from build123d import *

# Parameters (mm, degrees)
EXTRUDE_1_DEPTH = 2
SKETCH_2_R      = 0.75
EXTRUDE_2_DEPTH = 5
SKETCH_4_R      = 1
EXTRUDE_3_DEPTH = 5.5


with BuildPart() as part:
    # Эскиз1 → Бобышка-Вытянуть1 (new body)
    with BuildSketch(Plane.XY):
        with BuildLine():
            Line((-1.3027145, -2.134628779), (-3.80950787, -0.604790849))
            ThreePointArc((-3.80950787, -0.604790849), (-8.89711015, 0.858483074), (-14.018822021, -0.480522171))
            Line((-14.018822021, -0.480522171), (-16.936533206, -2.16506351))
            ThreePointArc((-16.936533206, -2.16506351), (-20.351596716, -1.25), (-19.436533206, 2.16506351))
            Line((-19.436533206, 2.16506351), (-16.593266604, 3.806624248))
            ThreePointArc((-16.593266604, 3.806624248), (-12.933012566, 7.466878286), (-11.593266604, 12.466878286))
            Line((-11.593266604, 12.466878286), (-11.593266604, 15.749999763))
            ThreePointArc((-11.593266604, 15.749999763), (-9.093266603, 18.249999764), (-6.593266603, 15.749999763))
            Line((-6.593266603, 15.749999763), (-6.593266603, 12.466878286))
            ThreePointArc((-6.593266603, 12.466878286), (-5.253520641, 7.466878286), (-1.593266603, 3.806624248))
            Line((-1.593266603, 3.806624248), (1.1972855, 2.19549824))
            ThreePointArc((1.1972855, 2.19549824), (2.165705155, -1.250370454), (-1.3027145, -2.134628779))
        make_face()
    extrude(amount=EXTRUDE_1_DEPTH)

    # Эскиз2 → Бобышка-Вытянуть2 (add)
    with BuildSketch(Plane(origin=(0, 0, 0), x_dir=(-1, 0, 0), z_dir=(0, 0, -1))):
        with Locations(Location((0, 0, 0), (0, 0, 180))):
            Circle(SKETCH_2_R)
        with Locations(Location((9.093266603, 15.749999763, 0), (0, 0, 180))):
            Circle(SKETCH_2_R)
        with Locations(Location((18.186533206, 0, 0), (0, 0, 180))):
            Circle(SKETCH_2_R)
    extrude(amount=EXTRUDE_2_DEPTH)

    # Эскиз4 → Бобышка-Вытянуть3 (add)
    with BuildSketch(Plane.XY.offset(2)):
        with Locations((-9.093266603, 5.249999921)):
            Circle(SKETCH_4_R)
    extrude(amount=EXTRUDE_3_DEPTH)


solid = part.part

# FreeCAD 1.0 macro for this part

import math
import FreeCAD as App
import Part
import Sketcher

V = App.Vector
Q = App.Units.Quantity

doc = App.newDocument("Part")
body = doc.addObject("PartDesign::Body", "Body")

sketch1 = body.newObject("Sketcher::SketchObject", "Sketch")
sketch1.AttachmentSupport = (doc.getObject("XY_Plane"), [""])
sketch1.MapMode = "FlatFace"
sketch1.addGeometry([
    Part.LineSegment(V(-3.8, -0.6, 0), V(-1.3, -2.1, 0)),
    Part.ArcOfCircle(Part.Circle(V(0, 0, 0), V(0, 0, 1), 2.5), math.radians(-121), math.radians(61)),
    Part.LineSegment(V(1.2, 2.2, 0), V(-1.6, 3.8, 0)),
    Part.ArcOfCircle(Part.Circle(V(3.4, 12.5, 0), V(0, 0, 1), 10), math.radians(180), math.radians(240)),
    Part.LineSegment(V(-6.6, 12.5, 0), V(-6.6, 15.7, 0)),
    Part.ArcOfCircle(Part.Circle(V(-9.1, 15.7, 0), V(0, 0, 1), 2.5), math.radians(0), math.radians(180)),
    Part.LineSegment(V(-11.6, 15.7, 0), V(-11.6, 12.5, 0)),
    Part.ArcOfCircle(Part.Circle(V(-21.6, 12.5, 0), V(0, 0, 1), 10), math.radians(-60), math.radians(0)),
    Part.LineSegment(V(-16.6, 3.8, 0), V(-19.4, 2.2, 0)),
    Part.ArcOfCircle(Part.Circle(V(-18.2, 0, 0), V(0, 0, 1), 2.5), math.radians(120), math.radians(300)),
    Part.LineSegment(V(-16.9, -2.2, 0), V(-14, -0.5, 0)),
    Part.ArcOfCircle(Part.Circle(V(-9, -9.1, 0), V(0, 0, 1), 10), math.radians(59), math.radians(120)),
], False)
sketch1.addConstraint([
    Sketcher.Constraint("Tangent", 0, 2, 1, 1),
    Sketcher.Constraint("Coincident", 1, 2, 2, 1),
    Sketcher.Constraint("Tangent", 2, 2, 3, 2),
    Sketcher.Constraint("Tangent", 3, 1, 4, 1),
    Sketcher.Constraint("Tangent", 4, 2, 5, 1),
    Sketcher.Constraint("Tangent", 5, 2, 6, 1),
    Sketcher.Constraint("Tangent", 6, 2, 7, 2),
    Sketcher.Constraint("Tangent", 7, 1, 8, 1),
    Sketcher.Constraint("Tangent", 8, 2, 9, 1),
    Sketcher.Constraint("Tangent", 9, 2, 10, 1),
    Sketcher.Constraint("Tangent", 10, 2, 11, 2),
    Sketcher.Constraint("Tangent", 11, 1, 0, 1),
    Sketcher.Constraint("Vertical", 4),
    Sketcher.Constraint("Vertical", 6),
    Sketcher.Constraint("Coincident", 1, 3, -1, 1),
    Sketcher.Constraint("Equal", 3, 7),
    Sketcher.Constraint("Equal", 5, 9),
    Sketcher.Constraint("Equal", 7, 11),
    Sketcher.Constraint("PointOnObject", 9, 3, -1),
    Sketcher.Constraint("Parallel", 8, 10),
    Sketcher.Constraint("Horizontal", 3, 3, 7, 3),
    Sketcher.Constraint("Horizontal", 2, 2, 7, 1),
    Sketcher.Constraint("Radius", 3, 10.0),
    Sketcher.Constraint("Radius", 5, 2.5),
    Sketcher.Constraint("Angle", 2, Q("150 deg")),
    Sketcher.Constraint("DistanceX", 0, 2, 1, 2, 2.5),
    Sketcher.Constraint("DistanceY", -1, 1, 5, 3, 15.75),
    Sketcher.Constraint("Radius", 1, 2.500741),
    Sketcher.Constraint("DistanceY", 4, 1, 4, 2, 3.283121),
    Sketcher.Constraint("DistanceY", -1, 1, 1, 2, 2.195498),
])
pad1 = body.newObject("PartDesign::Pad", "Pad")
pad1.Profile = sketch1
pad1.Length = 2

sketch2 = body.newObject("Sketcher::SketchObject", "Sketch001")
sketch2.AttachmentSupport = (doc.getObject("XY_Plane"), [""])
sketch2.MapMode = "FlatFace"
sketch2.addGeometry([
    Part.Circle(V(0, 0, 0), V(0, 0, 1), 0.8),
    Part.Circle(V(-9.1, 15.7, 0), V(0, 0, 1), 0.8),
    Part.Circle(V(-18.2, 0, 0), V(0, 0, 1), 0.8),
], False)
sketch2.addConstraint([
    Sketcher.Constraint("Coincident", 0, 3, -1, 1),
    Sketcher.Constraint("Equal", 0, 1),
    Sketcher.Constraint("Equal", 1, 2),
    Sketcher.Constraint("PointOnObject", 2, 3, -1),
    Sketcher.Constraint("Diameter", 0, 1.5),
    Sketcher.Constraint("DistanceY", -1, 1, 1, 3, 15.75),
    Sketcher.Constraint("DistanceX", 1, 3, -1, 1, 9.093267),
    Sketcher.Constraint("DistanceX", 2, 3, -1, 1, 18.186533),
])
pad2 = body.newObject("PartDesign::Pad", "Pad001")
pad2.Profile = sketch2
pad2.Length = 5
pad2.Reversed = True

sketch3 = body.newObject("Sketcher::SketchObject", "Sketch002")
sketch3.AttachmentSupport = (doc.getObject("XY_Plane"), [""])
sketch3.MapMode = "FlatFace"
sketch3.AttachmentOffset = App.Placement(V(0, 0, 2), App.Rotation())
sketch3.addGeometry(Part.Circle(V(-9.1, 5.2, 0), V(0, 0, 1), 1), False)
sketch3.addConstraint([
    Sketcher.Constraint("Diameter", 0, 2.0),
    Sketcher.Constraint("DistanceY", -1, 1, 0, 3, 5.25),
    Sketcher.Constraint("DistanceX", 0, 3, -1, 1, 9.093267),
])
pad3 = body.newObject("PartDesign::Pad", "Pad002")
pad3.Profile = sketch3
pad3.Length = 5.5

doc.recompute()
